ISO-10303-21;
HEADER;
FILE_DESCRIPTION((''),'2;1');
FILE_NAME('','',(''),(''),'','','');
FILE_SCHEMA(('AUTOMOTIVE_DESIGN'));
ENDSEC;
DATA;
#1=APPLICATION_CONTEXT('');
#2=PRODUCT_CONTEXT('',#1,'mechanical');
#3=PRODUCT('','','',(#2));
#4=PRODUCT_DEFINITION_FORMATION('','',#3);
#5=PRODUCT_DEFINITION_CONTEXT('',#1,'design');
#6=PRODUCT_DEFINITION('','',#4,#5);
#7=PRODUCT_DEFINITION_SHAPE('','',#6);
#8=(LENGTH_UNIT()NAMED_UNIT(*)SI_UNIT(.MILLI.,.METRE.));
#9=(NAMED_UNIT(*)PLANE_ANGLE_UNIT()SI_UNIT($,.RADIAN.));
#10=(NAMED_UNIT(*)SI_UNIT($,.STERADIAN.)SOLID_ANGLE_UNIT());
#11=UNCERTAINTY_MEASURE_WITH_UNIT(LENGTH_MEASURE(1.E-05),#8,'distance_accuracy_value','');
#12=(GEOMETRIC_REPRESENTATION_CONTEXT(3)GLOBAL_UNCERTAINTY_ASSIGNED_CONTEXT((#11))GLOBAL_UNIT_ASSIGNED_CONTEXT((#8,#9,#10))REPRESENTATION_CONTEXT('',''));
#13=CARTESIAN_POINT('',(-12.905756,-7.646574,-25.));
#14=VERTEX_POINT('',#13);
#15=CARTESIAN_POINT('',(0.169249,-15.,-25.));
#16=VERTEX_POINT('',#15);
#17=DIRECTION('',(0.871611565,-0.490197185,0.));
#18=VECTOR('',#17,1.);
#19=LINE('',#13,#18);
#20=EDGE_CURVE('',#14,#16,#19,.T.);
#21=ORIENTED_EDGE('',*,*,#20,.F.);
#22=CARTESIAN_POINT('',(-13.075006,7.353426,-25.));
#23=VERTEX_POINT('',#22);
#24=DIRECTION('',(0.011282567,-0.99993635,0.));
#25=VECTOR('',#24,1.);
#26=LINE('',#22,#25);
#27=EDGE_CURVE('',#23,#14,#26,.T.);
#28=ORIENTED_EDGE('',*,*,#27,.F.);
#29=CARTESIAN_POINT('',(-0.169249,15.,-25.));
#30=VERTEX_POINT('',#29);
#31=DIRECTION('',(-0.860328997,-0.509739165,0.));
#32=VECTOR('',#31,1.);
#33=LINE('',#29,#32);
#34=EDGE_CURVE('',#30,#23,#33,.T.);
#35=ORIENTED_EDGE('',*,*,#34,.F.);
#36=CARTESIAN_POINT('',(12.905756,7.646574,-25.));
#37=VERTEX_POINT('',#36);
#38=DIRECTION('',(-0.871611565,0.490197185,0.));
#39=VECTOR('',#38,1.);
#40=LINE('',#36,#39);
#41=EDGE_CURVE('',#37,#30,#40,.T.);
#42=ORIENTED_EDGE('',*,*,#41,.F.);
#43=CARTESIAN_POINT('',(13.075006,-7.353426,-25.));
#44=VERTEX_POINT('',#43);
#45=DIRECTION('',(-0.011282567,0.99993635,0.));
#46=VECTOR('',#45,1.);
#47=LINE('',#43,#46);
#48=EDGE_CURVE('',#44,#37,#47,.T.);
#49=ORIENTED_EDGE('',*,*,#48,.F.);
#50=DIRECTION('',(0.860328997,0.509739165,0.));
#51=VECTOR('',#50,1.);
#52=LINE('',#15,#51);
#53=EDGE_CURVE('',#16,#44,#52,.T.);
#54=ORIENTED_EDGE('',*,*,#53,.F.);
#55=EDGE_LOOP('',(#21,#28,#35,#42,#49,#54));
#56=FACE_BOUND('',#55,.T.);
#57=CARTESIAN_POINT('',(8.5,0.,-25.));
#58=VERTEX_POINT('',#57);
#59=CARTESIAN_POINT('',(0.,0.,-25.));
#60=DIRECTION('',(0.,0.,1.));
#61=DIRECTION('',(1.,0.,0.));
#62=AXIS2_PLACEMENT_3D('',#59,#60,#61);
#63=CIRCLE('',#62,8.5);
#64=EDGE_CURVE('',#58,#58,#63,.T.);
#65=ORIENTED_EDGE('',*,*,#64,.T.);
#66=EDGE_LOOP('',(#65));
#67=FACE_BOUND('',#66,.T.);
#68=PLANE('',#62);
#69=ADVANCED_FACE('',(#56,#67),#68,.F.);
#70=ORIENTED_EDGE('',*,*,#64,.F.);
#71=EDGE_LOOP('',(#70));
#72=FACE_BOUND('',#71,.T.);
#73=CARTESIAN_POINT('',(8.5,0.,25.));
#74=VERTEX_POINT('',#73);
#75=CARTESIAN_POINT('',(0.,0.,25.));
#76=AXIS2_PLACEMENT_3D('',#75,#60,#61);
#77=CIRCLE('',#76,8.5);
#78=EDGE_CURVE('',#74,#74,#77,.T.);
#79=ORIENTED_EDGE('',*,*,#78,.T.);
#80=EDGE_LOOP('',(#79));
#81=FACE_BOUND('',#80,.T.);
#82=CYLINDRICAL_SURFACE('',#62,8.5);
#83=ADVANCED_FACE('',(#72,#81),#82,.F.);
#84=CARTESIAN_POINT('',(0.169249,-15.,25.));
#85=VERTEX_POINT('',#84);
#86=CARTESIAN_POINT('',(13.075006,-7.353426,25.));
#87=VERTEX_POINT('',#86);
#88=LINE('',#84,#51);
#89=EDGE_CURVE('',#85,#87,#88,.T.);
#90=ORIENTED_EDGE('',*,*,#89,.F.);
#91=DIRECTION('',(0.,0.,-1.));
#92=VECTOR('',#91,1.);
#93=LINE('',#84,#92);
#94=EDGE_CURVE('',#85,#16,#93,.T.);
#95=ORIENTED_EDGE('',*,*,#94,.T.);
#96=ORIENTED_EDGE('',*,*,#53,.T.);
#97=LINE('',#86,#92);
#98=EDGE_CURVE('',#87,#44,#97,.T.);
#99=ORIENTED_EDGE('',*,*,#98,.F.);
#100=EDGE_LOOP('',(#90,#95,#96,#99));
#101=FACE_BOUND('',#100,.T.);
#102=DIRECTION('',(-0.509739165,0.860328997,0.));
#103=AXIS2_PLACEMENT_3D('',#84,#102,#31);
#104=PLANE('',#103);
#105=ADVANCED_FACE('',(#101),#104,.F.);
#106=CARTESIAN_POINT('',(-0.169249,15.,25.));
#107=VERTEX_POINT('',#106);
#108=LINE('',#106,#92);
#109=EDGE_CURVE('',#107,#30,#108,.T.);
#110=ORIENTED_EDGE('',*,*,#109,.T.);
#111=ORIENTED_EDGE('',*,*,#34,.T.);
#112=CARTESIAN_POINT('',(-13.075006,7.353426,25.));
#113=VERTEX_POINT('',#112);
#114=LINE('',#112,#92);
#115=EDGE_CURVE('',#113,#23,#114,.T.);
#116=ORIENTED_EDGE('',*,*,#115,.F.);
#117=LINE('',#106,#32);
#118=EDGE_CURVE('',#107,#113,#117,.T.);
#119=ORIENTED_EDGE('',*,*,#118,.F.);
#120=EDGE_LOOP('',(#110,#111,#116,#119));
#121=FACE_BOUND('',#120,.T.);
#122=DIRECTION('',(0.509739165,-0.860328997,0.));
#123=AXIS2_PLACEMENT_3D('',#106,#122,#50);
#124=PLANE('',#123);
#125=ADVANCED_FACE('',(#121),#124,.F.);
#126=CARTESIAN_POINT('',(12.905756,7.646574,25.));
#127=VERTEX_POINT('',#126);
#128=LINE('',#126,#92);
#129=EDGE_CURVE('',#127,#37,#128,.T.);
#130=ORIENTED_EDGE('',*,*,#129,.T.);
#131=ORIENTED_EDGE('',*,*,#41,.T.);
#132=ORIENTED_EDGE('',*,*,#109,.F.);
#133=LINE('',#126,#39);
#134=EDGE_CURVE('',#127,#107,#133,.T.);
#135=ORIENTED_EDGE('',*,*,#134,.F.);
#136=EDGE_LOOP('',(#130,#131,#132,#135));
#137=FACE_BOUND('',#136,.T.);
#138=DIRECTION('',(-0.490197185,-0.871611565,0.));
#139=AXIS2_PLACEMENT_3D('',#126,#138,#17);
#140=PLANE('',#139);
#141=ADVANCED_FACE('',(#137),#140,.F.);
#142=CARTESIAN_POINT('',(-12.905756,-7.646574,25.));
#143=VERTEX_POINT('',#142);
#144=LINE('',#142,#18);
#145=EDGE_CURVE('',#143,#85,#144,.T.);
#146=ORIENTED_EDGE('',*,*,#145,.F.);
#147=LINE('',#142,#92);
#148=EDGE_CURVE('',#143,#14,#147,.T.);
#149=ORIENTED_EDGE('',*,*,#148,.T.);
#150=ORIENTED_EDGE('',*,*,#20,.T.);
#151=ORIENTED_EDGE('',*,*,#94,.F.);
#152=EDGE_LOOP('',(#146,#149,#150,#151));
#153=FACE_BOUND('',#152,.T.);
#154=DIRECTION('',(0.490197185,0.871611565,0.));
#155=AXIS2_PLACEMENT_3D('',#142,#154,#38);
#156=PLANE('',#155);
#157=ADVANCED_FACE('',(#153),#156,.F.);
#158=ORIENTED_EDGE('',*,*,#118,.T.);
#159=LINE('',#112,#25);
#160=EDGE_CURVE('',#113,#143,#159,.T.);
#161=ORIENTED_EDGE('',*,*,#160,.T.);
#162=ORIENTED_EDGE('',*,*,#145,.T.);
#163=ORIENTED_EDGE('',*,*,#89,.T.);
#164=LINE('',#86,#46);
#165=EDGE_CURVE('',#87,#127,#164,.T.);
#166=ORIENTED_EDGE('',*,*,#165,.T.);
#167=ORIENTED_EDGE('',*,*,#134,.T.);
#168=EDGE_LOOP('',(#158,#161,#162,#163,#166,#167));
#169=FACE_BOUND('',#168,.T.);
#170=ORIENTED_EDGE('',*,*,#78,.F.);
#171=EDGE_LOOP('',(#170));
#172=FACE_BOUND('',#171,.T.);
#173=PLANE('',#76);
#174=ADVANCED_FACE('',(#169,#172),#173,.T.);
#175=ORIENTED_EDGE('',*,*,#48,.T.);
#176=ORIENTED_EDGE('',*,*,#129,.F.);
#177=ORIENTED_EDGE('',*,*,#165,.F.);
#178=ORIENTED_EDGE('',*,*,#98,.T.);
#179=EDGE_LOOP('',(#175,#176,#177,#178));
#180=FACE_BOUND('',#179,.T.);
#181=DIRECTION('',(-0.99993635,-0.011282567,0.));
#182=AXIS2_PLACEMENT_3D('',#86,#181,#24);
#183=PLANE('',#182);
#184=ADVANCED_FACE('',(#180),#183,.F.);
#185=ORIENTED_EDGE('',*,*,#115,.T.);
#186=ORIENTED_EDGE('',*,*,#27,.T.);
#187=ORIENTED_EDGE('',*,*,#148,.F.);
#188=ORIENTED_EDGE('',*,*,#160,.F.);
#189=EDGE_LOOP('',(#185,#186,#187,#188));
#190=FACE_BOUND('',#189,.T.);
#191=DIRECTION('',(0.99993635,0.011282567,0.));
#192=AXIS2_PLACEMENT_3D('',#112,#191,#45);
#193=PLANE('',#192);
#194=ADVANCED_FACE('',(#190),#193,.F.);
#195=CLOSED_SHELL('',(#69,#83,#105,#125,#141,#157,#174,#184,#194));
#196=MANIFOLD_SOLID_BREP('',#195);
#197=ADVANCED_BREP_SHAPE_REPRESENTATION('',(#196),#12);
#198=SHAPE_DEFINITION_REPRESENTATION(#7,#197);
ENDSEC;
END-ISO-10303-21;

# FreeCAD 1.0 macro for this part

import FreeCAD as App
import Part
import Sketcher

V = App.Vector

doc = App.newDocument("Part")
body = doc.addObject("PartDesign::Body", "Body")

# Sketch on XY plane
sketch1 = body.newObject("Sketcher::SketchObject", "Sketch")
sketch1.AttachmentSupport = (doc.getObject("XY_Plane"), [""])
sketch1.MapMode = "FlatFace"
sketch1.addGeometry([
    Part.LineSegment(V(13, 8, 0), V(0, 15, 0)),  # 0
    Part.LineSegment(V(0, 15, 0), V(-13, 7, 0)),  # 1
    Part.LineSegment(V(-13, 7, 0), V(-13, -8, 0)),  # 2
    Part.LineSegment(V(-13, -8, 0), V(0, -15, 0)),  # 3
    Part.LineSegment(V(0, -15, 0), V(13, -7, 0)),  # 4
    Part.LineSegment(V(13, -7, 0), V(13, 8, 0)),  # 5
], False)
sketch1.addConstraint([
    Sketcher.Constraint("Coincident", 0, 2, 1, 1),
    Sketcher.Constraint("Coincident", 1, 2, 2, 1),
    Sketcher.Constraint("Coincident", 2, 2, 3, 1),
    Sketcher.Constraint("Coincident", 3, 2, 4, 1),
    Sketcher.Constraint("Coincident", 4, 2, 5, 1),
    Sketcher.Constraint("Coincident", 5, 2, 0, 1),
    Sketcher.Constraint("Symmetric", 0, 2, 3, 2, -1, 1),
    Sketcher.Constraint("Symmetric", 1, 2, 4, 2, -1, 1),
    Sketcher.Constraint("Symmetric", 2, 2, 5, 2, -1, 1),
    Sketcher.Constraint("Equal", 0, 1),
    Sketcher.Constraint("Equal", 1, 2),
    Sketcher.Constraint("DistanceY", -1, 1, 0, 2, 15.0),
    Sketcher.Constraint("DistanceY", 2, 2, 1, 2, 15.0),
    Sketcher.Constraint("DistanceX", 0, 2, 3, 2, 0.338499),
    Sketcher.Constraint("DistanceX", 1, 2, 2, 2, 0.169249),
])
pad1 = body.newObject("PartDesign::Pad", "Pad")
pad1.Profile = sketch1
pad1.Length = 50
pad1.Midplane = True

# Sketch on XY plane
sketch2 = body.newObject("Sketcher::SketchObject", "Sketch001")
sketch2.AttachmentSupport = (doc.getObject("XY_Plane"), [""])
sketch2.MapMode = "FlatFace"
sketch2.addGeometry(Part.Circle(V(0, 0, 0), V(0, 0, 1), 8), False)
sketch2.addConstraint([
    Sketcher.Constraint("Coincident", 0, 3, -1, 1),
    Sketcher.Constraint("Diameter", 0, 17.0),
])
pocket1 = body.newObject("PartDesign::Pocket", "Pocket")
pocket1.Profile = sketch2
pocket1.Type = "ThroughAll"
pocket1.Midplane = True

doc.recompute()
